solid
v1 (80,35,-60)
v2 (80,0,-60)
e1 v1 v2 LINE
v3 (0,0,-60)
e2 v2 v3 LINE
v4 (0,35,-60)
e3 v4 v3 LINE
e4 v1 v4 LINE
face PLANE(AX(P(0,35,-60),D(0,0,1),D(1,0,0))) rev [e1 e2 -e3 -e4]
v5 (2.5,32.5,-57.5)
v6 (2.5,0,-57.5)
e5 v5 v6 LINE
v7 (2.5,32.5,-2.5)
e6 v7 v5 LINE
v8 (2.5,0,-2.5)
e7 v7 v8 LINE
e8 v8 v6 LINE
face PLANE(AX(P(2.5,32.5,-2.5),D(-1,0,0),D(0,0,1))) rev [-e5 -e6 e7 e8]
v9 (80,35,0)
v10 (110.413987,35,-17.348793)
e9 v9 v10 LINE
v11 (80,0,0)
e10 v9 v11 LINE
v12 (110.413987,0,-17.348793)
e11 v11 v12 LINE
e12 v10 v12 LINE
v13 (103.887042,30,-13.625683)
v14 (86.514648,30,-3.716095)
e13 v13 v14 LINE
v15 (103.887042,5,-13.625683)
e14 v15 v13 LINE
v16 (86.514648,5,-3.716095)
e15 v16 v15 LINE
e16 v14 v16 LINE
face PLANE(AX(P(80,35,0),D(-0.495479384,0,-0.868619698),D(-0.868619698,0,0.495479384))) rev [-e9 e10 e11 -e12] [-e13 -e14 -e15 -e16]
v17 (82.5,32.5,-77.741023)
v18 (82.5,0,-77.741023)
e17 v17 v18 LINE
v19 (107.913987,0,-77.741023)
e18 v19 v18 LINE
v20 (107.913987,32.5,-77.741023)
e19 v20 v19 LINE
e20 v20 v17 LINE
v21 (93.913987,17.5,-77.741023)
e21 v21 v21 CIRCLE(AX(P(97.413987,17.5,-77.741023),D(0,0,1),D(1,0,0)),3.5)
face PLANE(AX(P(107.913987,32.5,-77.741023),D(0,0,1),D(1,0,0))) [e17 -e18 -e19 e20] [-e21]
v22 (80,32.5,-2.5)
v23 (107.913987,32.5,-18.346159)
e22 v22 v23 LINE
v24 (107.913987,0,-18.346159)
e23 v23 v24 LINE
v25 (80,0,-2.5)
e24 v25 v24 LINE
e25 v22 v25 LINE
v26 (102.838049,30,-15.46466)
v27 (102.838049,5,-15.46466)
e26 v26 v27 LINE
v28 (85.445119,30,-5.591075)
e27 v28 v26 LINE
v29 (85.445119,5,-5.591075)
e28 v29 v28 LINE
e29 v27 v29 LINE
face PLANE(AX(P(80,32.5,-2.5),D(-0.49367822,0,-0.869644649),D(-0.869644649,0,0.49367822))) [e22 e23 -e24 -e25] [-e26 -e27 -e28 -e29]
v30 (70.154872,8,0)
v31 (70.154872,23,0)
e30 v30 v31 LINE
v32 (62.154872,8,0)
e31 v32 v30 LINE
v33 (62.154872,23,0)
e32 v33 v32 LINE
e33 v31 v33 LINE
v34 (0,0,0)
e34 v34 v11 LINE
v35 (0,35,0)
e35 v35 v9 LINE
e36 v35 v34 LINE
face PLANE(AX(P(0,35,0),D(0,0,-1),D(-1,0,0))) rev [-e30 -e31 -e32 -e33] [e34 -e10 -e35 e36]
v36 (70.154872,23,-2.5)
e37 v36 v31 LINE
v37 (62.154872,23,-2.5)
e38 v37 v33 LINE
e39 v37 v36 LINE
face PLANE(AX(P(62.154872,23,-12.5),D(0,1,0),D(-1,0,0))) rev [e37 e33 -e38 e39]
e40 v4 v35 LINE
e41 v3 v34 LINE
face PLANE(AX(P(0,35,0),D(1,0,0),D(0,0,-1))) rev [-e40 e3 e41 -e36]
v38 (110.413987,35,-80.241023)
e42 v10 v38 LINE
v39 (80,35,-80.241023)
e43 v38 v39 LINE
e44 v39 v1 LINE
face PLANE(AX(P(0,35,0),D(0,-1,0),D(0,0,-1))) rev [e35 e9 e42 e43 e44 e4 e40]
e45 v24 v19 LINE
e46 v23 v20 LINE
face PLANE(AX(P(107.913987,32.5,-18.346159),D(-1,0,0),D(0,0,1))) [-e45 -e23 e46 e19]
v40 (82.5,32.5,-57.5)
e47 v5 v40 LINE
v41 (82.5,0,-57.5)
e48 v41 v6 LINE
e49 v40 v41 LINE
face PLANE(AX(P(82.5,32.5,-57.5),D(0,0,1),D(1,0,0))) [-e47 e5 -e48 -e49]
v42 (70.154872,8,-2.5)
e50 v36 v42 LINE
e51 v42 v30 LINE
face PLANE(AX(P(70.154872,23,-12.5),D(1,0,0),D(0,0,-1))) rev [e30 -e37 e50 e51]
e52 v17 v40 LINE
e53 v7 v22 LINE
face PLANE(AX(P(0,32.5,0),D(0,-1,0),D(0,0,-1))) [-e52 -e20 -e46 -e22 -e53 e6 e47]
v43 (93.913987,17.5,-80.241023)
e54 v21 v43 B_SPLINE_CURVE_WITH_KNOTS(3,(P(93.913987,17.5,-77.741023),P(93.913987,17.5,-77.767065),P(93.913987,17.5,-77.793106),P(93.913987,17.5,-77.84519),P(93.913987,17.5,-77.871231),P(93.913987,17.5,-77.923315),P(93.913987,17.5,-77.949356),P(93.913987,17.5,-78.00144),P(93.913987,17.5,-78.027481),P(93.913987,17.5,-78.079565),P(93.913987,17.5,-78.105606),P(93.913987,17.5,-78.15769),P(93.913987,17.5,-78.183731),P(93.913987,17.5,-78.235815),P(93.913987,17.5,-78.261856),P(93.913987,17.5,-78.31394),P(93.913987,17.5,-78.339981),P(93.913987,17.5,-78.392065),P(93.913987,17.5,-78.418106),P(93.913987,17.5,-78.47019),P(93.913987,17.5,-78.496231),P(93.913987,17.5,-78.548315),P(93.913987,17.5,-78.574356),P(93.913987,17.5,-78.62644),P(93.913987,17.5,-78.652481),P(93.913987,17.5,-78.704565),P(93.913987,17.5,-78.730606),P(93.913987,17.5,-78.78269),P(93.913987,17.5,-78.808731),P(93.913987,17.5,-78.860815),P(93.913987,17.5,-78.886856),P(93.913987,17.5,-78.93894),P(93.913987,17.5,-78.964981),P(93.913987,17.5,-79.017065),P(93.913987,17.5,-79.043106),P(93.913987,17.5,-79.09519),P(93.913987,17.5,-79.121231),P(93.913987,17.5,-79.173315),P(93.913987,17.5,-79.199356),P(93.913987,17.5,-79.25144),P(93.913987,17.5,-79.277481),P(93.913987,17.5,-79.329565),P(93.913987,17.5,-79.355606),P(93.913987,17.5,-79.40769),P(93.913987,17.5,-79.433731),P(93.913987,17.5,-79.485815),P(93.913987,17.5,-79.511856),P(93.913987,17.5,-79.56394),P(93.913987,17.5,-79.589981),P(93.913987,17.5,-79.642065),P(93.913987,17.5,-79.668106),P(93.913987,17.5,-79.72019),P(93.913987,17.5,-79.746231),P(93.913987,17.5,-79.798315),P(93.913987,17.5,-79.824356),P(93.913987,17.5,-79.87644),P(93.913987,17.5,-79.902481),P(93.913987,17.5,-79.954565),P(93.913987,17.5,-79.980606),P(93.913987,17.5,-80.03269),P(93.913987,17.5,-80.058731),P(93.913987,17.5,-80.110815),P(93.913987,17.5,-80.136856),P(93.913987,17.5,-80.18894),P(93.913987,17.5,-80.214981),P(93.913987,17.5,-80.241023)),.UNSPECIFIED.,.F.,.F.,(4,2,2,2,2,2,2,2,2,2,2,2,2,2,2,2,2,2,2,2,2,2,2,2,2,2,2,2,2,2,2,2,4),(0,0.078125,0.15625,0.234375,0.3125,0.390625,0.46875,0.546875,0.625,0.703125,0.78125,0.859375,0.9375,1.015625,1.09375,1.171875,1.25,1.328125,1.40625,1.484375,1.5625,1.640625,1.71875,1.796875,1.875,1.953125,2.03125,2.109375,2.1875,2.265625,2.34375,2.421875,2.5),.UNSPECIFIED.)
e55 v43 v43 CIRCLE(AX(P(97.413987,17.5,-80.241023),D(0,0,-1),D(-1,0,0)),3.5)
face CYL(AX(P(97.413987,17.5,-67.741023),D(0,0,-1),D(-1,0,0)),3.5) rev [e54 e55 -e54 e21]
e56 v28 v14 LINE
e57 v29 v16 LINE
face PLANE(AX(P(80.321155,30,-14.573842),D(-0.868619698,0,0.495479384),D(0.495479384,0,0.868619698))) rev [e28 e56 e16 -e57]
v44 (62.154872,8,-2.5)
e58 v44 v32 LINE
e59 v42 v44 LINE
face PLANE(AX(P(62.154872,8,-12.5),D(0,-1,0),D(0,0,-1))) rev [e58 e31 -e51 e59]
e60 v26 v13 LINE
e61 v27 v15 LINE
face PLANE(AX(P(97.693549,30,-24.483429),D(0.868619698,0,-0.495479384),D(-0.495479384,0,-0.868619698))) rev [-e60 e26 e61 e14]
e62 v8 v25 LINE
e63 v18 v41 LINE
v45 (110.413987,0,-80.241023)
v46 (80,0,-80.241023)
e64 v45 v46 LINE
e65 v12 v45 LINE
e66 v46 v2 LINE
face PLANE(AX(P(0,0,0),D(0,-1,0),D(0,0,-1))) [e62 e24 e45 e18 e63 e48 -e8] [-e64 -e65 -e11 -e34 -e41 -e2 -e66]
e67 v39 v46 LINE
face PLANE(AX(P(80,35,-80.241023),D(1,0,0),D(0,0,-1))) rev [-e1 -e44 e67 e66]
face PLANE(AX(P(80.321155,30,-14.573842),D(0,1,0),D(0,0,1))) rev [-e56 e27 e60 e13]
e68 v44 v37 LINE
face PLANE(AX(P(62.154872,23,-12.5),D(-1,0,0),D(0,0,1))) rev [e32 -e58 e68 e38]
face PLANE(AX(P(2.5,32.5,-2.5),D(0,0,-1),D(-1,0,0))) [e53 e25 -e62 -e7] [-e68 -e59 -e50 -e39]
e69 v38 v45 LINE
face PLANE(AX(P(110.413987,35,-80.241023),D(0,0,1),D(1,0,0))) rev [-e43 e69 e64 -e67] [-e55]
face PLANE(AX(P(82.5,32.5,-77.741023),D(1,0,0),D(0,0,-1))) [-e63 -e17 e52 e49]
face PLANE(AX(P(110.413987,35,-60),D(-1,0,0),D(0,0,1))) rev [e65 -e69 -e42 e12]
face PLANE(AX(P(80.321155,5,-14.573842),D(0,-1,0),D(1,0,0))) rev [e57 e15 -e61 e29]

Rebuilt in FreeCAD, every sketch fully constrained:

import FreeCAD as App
import Part
import Sketcher


def add_polygon(sketch, points):
    """Adds a closed chain of lines whose ends are joined by coincident constraints."""
    first, n = sketch.GeometryCount, len(points)
    for a, b in zip(points, points[1:] + points[:1]):
        sketch.addGeometry(Part.LineSegment(App.Vector(*a, 0), App.Vector(*b, 0)), False)
    for i in range(n):
        sketch.addConstraint(Sketcher.Constraint("Coincident", first + i, 2, first + (i + 1) % n, 1))

doc = App.newDocument("Part")
body = doc.addObject("PartDesign::Body", "Body")

# Sketch on XZ plane
sketch1 = body.newObject("Sketcher::SketchObject", "Sketch")
sketch1.AttachmentSupport = (doc.getObject("XZ_Plane"), [""])
sketch1.MapMode = "FlatFace"
add_polygon(sketch1, [(80, 0), (110.413987, -17.348793), (110.413987, -80.241023), (80, -80.241023), (80, -60), (0, -60), (0, 0)])  # lines 0-6
sketch1.addConstraint([
    Sketcher.Constraint("Vertical", 1),
    Sketcher.Constraint("Horizontal", 2),
    Sketcher.Constraint("Vertical", 3),
    Sketcher.Constraint("Horizontal", 4),
    Sketcher.Constraint("Vertical", 5),
    Sketcher.Constraint("Horizontal", 6),
    Sketcher.Constraint("Coincident", 5, 2, -1, 1),
    Sketcher.Constraint("Vertical", 3, 2, 6, 2),
    Sketcher.Constraint("DistanceX", 4, 2, 4, 1, 80.0),
    Sketcher.Constraint("DistanceY", 5, 1, 5, 2, 60.0),
    Sketcher.Constraint("DistanceY", 1, 2, 1, 1, 62.89223),
    Sketcher.Constraint("DistanceX", 2, 2, 2, 1, 30.413987),
    Sketcher.Constraint("DistanceY", 3, 1, 3, 2, 20.241023),
])
pad1 = body.newObject("PartDesign::Pad", "Pad")
pad1.Profile = sketch1
pad1.Length = 35
pad1.Reversed = True

# Sketch on XZ plane
sketch2 = body.newObject("Sketcher::SketchObject", "Sketch001")
sketch2.AttachmentSupport = (doc.getObject("XZ_Plane"), [""])
sketch2.MapMode = "FlatFace"
add_polygon(sketch2, [(80, -2.5), (2.5, -2.5), (2.5, -57.5), (82.5, -57.5), (82.5, -77.741023), (107.913987, -77.741023), (107.913987, -18.346159)])  # lines 0-6
sketch2.addConstraint([
    Sketcher.Constraint("Horizontal", 0),
    Sketcher.Constraint("Vertical", 1),
    Sketcher.Constraint("Horizontal", 2),
    Sketcher.Constraint("Vertical", 3),
    Sketcher.Constraint("Horizontal", 4),
    Sketcher.Constraint("Vertical", 5),
    Sketcher.Constraint("DistanceX", 2, 1, 2, 2, 80.0),
    Sketcher.Constraint("DistanceY", 1, 2, 1, 1, 55.0),
    Sketcher.Constraint("DistanceX", 0, 2, 0, 1, 77.5),
    Sketcher.Constraint("DistanceX", -1, 1, 6, 2, 80.0),
    Sketcher.Constraint("DistanceY", 0, 2, -1, 1, 2.5),
    Sketcher.Constraint("DistanceX", 4, 1, 4, 2, 25.413987),
    Sketcher.Constraint("DistanceY", 3, 2, 3, 1, 20.241023),
    Sketcher.Constraint("DistanceY", 5, 1, 5, 2, 59.394864),
])
pocket1 = body.newObject("PartDesign::Pocket", "Pocket")
pocket1.Profile = sketch2
pocket1.Length = 32.5

# Sketch on an angled plane
sketch3 = body.newObject("Sketcher::SketchObject", "Sketch002")
sketch3.Placement = App.Placement(App.Vector(19.639986, 0, 34.430652), App.Rotation(App.Vector(0.868619698, 0, -0.495479384), App.Vector(0, 1, 0), App.Vector(0.495479384, 0, 0.868619698), "ZXY"))
add_polygon(sketch3, [(76.989576, 30), (76.989576, 5), (96.989576, 5), (96.989576, 30)])  # lines 0-3
sketch3.addConstraint([
    Sketcher.Constraint("Vertical", 0),
    Sketcher.Constraint("Horizontal", 1),
    Sketcher.Constraint("Vertical", 2),
    Sketcher.Constraint("Horizontal", 3),
    Sketcher.Constraint("DistanceX", 1, 1, 1, 2, 20.0),
    Sketcher.Constraint("DistanceY", 0, 2, 0, 1, 25.0),
    Sketcher.Constraint("DistanceY", -1, 1, 0, 2, 5.0),
    Sketcher.Constraint("DistanceX", -1, 1, 0, 2, 76.989576),
])
pocket2 = body.newObject("PartDesign::Pocket", "Pocket001")
pocket2.Profile = sketch3
pocket2.Length = 12.5

# Sketch on XY plane
sketch4 = body.newObject("Sketcher::SketchObject", "Sketch003")
sketch4.AttachmentSupport = (doc.getObject("XY_Plane"), [""])
sketch4.MapMode = "FlatFace"
sketch4.AttachmentOffset = App.Placement(App.Vector(0, 0, -80.241023), App.Rotation())
sketch4.addGeometry(Part.Circle(App.Vector(97.413987, 17.5, 0), App.Vector(0, 0, 1), 3.5), False)
sketch4.addConstraint([
    Sketcher.Constraint("Diameter", 0, 7.0),
    Sketcher.Constraint("DistanceY", -1, 1, 0, 3, 17.5),
    Sketcher.Constraint("DistanceX", -1, 1, 0, 3, 97.413987),
])
pocket3 = body.newObject("PartDesign::Pocket", "Pocket002")
pocket3.Profile = sketch4
pocket3.Length = 12.5
pocket3.Reversed = True

# Sketch on XY plane
sketch5 = body.newObject("Sketcher::SketchObject", "Sketch004")
sketch5.AttachmentSupport = (doc.getObject("XY_Plane"), [""])
sketch5.MapMode = "FlatFace"
add_polygon(sketch5, [(62.154872, 23), (62.154872, 8), (70.154872, 8), (70.154872, 23)])  # lines 0-3
sketch5.addConstraint([
    Sketcher.Constraint("Vertical", 0),
    Sketcher.Constraint("Horizontal", 1),
    Sketcher.Constraint("Vertical", 2),
    Sketcher.Constraint("Horizontal", 3),
    Sketcher.Constraint("DistanceX", 1, 1, 1, 2, 8.0),
    Sketcher.Constraint("DistanceY", 0, 2, 0, 1, 15.0),
    Sketcher.Constraint("DistanceY", -1, 1, 0, 2, 8.0),
    Sketcher.Constraint("DistanceX", -1, 1, 0, 2, 62.154872),
])
pocket4 = body.newObject("PartDesign::Pocket", "Pocket003")
pocket4.Profile = sketch5
pocket4.Length = 12.5

doc.recompute()
